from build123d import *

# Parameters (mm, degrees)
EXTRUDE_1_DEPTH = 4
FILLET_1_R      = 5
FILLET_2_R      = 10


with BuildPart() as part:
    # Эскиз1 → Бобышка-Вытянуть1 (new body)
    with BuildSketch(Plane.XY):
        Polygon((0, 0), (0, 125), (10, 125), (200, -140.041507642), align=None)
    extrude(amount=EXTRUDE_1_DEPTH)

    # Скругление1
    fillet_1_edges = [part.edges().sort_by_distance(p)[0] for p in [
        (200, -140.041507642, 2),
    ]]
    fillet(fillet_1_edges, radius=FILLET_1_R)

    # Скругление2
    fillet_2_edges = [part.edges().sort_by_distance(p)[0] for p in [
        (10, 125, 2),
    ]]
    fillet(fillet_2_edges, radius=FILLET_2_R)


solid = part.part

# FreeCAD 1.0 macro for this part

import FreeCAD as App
import Part
import Sketcher
Q = App.Units.Quantity


def edges_at(feature, points):
    """Names of the edges that pass closest to the given points."""
    edges = feature.Shape.Edges
    near = lambda p: min(range(len(edges)), key=lambda i: edges[i].distToShape(Part.Vertex(*p))[0])
    return sorted({f"Edge{near(p) + 1}" for p in points})


def add_polygon(sketch, points):
    """Adds a closed chain of lines whose ends are joined by coincident constraints."""
    first, n = sketch.GeometryCount, len(points)
    for a, b in zip(points, points[1:] + points[:1]):
        sketch.addGeometry(Part.LineSegment(App.Vector(*a, 0), App.Vector(*b, 0)), False)
    for i in range(n):
        sketch.addConstraint(Sketcher.Constraint("Coincident", first + i, 2, first + (i + 1) % n, 1))

doc = App.newDocument("Part")
params = doc.addObject("Spreadsheet::Sheet", "Params")
for row, (alias, value) in enumerate([
    ("sketch1_width", "10 mm"),
    ("sketch1_height", "125 mm"),
    ("pad1_length", "4 mm"),
    ("fillet_radius", "5 mm"),
    ("fillet2_radius", "10 mm"),
], start=1):
    params.set(f"A{row}", alias)
    params.set(f"B{row}", "=" + value)
    params.setAlias(f"B{row}", alias)

body = doc.addObject("PartDesign::Body", "Body")

# Sketch on XY plane
sketch1 = body.newObject("Sketcher::SketchObject", "Sketch")
sketch1.AttachmentSupport = (doc.getObject("XY_Plane"), [""])
sketch1.MapMode = "FlatFace"
add_polygon(sketch1, [(0, 125), (0, 0), (200, -140), (10, 125)])  # lines 0-3
sketch1.addConstraint([
    Sketcher.Constraint("Vertical", 0),
    Sketcher.Constraint("Horizontal", 3),
    Sketcher.Constraint("Coincident", 0, 2, -1, 1),
    Sketcher.Constraint("DistanceX", 3, 2, 3, 1, 10.0),
    Sketcher.Constraint("DistanceY", 0, 2, 0, 1, 125.0),
    Sketcher.Constraint("Angle", 1, Q("-35 deg")),
    Sketcher.Constraint("DistanceX", -1, 1, 1, 2, 200.0),
])
sketch1.setExpression("Constraints[7]", "Params.sketch1_width")
sketch1.setExpression("Constraints[8]", "Params.sketch1_height")
pad1 = body.newObject("PartDesign::Pad", "Pad")
pad1.Profile = sketch1
pad1.setExpression("Length", "Params.pad1_length")
doc.recompute()

fillet = body.newObject("PartDesign::Fillet", "Fillet")
fillet.Base = (pad1, edges_at(pad1, [(200, -140.042, 2)]))
fillet.setExpression("Radius", "Params.fillet_radius")
doc.recompute()

fillet2 = body.newObject("PartDesign::Fillet", "Fillet001")
fillet2.Base = (fillet, edges_at(fillet, [(10, 125, 2)]))
fillet2.setExpression("Radius", "Params.fillet2_radius")

doc.recompute()
